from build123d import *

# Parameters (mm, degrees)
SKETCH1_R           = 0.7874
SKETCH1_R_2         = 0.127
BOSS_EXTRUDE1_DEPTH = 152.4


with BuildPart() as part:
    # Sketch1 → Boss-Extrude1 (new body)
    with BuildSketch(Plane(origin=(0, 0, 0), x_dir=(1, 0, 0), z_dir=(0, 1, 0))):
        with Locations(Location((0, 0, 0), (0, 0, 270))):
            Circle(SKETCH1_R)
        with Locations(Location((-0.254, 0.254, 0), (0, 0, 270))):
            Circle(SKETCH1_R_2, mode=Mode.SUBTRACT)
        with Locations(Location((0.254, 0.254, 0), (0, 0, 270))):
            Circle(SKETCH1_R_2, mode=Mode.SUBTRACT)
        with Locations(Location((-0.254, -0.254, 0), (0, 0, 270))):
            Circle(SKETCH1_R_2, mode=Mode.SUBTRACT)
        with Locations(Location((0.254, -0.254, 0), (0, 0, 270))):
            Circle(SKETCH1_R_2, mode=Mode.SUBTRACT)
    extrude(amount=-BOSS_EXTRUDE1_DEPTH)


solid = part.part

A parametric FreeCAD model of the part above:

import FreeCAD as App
import Part
import Sketcher

V = App.Vector
Q = App.Units.Quantity

doc = App.newDocument("Part")
params = doc.addObject("Spreadsheet::Sheet", "Params")
for row, (alias, value) in enumerate([
    ("sketch1_diameter", "0.01 in"),
    ("sketch1_diameter2", "0.062 in"),
    ("pad1_length", "6 in"),
], start=1):
    params.set(f"A{row}", alias)
    params.set(f"B{row}", "=" + value)
    params.setAlias(f"B{row}", alias)

body = doc.addObject("PartDesign::Body", "Body")

sketch1 = body.newObject("Sketcher::SketchObject", "Sketch")
sketch1.AttachmentSupport = (doc.getObject("XZ_Plane"), [""])
sketch1.MapMode = "FlatFace"
sketch1.addGeometry(Part.Circle(V(0, 0, 0), V(0, 0, 1), 0.79), False)
sketch1.addGeometry(Part.Circle(V(-0.25, -0.25, 0), V(0, 0, 1), 0.13), False)
sketch1.addGeometry(Part.Circle(V(-0.25, 0.25, 0), V(0, 0, 1), 0.13), False)
sketch1.addGeometry(Part.Circle(V(0.25, -0.25, 0), V(0, 0, 1), 0.13), False)
sketch1.addGeometry(Part.Circle(V(0.25, 0.25, 0), V(0, 0, 1), 0.13), False)
sketch1.addConstraint(Sketcher.Constraint("Coincident", 0, 3, -1, 1))
sketch1.addConstraint(Sketcher.Constraint("Equal", 1, 2))
sketch1.addConstraint(Sketcher.Constraint("Equal", 2, 3))
sketch1.addConstraint(Sketcher.Constraint("Equal", 3, 4))
sketch1.addConstraint(Sketcher.Constraint("Symmetric", 2, 3, 3, 3, -1, 1))
sketch1.addConstraint(Sketcher.Constraint("Symmetric", 1, 3, 4, 3, -1, 1))
sketch1.addConstraint(Sketcher.Constraint("Symmetric", 1, 3, 3, 3, -2))
sketch1.addConstraint(Sketcher.Constraint("Diameter", 1, Q("0.01 in")))
sketch1.addConstraint(Sketcher.Constraint("Diameter", 0, Q("0.062 in")))
sketch1.addConstraint(Sketcher.Constraint("DistanceX", 1, 3, -1, 1, Q("0.01 in")))
sketch1.addConstraint(Sketcher.Constraint("DistanceY", 1, 3, -1, 1, Q("0.01 in")))
sketch1.setExpression("Constraints[7]", "Params.sketch1_diameter")
sketch1.setExpression("Constraints[8]", "Params.sketch1_diameter2")
pad1 = body.newObject("PartDesign::Pad", "Pad")
pad1.Profile = sketch1
pad1.setExpression("Length", "Params.pad1_length")

doc.recompute()
